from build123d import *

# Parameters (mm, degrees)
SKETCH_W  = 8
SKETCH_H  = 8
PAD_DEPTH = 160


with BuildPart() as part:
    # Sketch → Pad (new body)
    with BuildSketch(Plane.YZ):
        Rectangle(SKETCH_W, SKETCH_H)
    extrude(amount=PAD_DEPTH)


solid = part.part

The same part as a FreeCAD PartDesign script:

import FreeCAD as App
import Part
import Sketcher
from FreeCAD import Vector
Q = App.Units.Quantity

doc = App.newDocument("Part")
body = doc.addObject("PartDesign::Body", "Body")

sketch1 = body.newObject("Sketcher::SketchObject", "Sketch")
sketch1.AttachmentSupport = (doc.getObject("YZ_Plane"), [""])
sketch1.MapMode = "FlatFace"
sketch1.addGeometry([
    Part.LineSegment(Vector(-4, 4, 0), Vector(-4, -4, 0)),
    Part.LineSegment(Vector(-4, -4, 0), Vector(4, -4, 0)),
    Part.LineSegment(Vector(4, -4, 0), Vector(4, 4, 0)),
    Part.LineSegment(Vector(4, 4, 0), Vector(-4, 4, 0)),
], False)
sketch1.addConstraint([
    Sketcher.Constraint("Coincident", 0, 2, 1, 1),
    Sketcher.Constraint("Coincident", 1, 2, 2, 1),
    Sketcher.Constraint("Coincident", 2, 2, 3, 1),
    Sketcher.Constraint("Coincident", 3, 2, 0, 1),
    Sketcher.Constraint("Vertical", 0),
    Sketcher.Constraint("Horizontal", 1),
    Sketcher.Constraint("Vertical", 2),
    Sketcher.Constraint("Horizontal", 3),
    Sketcher.Constraint("Symmetric", 0, 2, 2, 2, -1, 1),
    Sketcher.Constraint("Equal", 3, 0),
    Sketcher.Constraint("DistanceX", 1, 1, 1, 2, Q("8 mm")),
])
pad1 = body.newObject("PartDesign::Pad", "Pad")
pad1.Profile = sketch1
pad1.Length = 160

doc.recompute()
